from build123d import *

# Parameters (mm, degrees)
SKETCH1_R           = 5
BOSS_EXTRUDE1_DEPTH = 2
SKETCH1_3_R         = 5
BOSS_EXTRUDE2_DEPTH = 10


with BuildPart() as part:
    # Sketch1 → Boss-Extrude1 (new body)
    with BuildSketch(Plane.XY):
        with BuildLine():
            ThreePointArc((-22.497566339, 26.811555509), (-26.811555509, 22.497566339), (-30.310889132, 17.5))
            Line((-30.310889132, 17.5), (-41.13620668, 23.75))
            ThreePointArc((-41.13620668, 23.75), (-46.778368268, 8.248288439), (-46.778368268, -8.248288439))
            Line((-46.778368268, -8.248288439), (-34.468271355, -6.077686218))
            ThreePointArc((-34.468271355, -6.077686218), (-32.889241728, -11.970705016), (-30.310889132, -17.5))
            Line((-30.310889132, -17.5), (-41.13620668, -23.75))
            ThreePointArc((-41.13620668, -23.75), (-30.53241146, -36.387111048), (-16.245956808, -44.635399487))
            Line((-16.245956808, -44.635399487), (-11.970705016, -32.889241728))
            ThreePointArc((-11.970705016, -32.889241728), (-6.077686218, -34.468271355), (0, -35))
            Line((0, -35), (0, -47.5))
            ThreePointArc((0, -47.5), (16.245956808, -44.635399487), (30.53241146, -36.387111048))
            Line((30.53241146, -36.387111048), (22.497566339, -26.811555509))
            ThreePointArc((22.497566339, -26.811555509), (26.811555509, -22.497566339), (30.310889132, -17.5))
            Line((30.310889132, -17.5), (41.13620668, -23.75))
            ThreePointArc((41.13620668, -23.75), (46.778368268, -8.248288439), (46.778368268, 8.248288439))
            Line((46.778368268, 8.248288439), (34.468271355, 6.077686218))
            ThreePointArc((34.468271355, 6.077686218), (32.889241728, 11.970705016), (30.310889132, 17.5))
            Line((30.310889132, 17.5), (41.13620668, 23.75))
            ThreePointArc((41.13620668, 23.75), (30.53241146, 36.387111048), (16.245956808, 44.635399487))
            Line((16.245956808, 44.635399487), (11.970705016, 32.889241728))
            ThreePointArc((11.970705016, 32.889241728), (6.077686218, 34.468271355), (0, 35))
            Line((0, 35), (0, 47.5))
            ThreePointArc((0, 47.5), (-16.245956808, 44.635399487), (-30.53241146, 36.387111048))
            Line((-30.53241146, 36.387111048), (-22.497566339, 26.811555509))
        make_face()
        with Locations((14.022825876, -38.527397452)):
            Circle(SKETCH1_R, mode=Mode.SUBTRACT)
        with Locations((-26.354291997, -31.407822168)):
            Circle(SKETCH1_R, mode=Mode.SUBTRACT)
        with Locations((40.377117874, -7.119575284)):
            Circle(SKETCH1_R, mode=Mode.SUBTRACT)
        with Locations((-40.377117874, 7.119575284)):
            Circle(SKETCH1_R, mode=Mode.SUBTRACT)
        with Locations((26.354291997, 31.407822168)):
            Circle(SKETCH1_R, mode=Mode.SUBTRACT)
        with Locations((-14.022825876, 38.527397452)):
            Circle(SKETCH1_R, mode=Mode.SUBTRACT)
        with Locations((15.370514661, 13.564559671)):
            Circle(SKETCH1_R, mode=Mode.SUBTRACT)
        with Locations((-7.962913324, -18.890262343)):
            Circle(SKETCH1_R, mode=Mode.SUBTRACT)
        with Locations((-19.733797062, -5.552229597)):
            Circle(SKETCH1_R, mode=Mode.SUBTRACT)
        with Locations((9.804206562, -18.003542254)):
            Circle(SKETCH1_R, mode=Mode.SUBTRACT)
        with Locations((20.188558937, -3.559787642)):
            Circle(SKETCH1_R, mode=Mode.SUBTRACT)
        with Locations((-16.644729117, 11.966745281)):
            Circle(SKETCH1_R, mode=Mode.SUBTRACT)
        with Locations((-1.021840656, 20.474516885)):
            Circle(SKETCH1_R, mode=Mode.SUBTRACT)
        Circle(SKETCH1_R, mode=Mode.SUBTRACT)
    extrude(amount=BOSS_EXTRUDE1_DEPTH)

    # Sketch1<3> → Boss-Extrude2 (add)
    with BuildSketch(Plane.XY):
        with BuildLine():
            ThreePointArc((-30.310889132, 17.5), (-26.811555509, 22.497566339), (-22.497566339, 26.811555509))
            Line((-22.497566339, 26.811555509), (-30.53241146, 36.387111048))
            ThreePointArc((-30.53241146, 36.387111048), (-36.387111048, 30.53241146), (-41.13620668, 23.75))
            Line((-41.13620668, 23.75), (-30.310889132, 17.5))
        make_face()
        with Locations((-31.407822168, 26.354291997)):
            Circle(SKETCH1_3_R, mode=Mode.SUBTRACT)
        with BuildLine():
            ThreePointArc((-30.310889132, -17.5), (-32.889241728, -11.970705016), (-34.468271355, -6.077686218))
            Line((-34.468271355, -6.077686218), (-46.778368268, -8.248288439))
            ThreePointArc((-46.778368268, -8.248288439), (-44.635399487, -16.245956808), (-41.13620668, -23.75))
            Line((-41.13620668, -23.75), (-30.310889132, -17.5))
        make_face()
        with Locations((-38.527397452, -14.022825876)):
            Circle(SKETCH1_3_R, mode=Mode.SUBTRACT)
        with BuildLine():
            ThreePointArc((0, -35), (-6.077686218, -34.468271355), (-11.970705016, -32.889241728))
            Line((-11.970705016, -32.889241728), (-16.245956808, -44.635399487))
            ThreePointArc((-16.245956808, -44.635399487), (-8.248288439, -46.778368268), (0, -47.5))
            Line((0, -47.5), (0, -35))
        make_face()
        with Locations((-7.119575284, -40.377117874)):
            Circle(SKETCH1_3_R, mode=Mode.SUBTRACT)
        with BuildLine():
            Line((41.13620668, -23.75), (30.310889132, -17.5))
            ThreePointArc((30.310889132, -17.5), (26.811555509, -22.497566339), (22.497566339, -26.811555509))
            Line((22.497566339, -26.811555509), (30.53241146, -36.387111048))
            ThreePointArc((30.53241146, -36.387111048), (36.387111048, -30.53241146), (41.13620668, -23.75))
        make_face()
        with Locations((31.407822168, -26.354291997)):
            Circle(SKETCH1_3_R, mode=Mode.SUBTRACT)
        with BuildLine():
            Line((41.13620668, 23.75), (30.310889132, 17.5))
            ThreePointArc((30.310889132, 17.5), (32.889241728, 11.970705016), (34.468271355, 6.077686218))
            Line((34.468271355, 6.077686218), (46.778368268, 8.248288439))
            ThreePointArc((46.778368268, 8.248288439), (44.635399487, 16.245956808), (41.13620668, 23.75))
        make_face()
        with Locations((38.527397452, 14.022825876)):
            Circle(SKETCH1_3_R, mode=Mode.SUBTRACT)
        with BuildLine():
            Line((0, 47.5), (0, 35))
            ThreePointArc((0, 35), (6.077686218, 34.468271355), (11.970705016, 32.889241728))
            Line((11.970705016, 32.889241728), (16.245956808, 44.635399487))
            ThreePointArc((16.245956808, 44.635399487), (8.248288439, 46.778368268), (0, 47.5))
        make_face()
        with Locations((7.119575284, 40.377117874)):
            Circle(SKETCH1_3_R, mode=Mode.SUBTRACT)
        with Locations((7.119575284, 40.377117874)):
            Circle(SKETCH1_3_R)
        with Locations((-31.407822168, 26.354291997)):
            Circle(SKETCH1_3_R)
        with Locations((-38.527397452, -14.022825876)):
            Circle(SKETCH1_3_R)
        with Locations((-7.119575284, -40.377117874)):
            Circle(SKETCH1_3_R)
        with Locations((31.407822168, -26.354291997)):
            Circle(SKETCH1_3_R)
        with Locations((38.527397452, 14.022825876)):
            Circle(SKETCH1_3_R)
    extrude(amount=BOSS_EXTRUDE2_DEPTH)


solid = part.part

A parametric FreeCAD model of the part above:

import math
import FreeCAD as App
import Part
import Sketcher

V = App.Vector
Q = App.Units.Quantity

doc = App.newDocument("Part")
params = doc.addObject("Spreadsheet::Sheet", "Params")
for row, (alias, value) in enumerate([
    ("sketch1_diameter", "10 mm"),
    ("sketch1_radius", "35 mm"),
    ("sketch1_radius2", "47.5 mm"),
    ("pad1_length", "2 mm"),
    ("sketch2_radius", "35 mm"),
    ("sketch2_radius2", "47.5 mm"),
    ("pad2_length", "10 mm"),
], start=1):
    params.set(f"A{row}", alias)
    params.set(f"B{row}", "=" + value)
    params.setAlias(f"B{row}", alias)

body = doc.addObject("PartDesign::Body", "Body")

sketch1 = body.newObject("Sketcher::SketchObject", "Sketch")
sketch1.AttachmentSupport = (doc.getObject("XY_Plane"), [""])
sketch1.MapMode = "FlatFace"
sketch1.addGeometry(Part.ArcOfCircle(Part.Circle(V(0, 0, 0), V(0, 0, 1), 35), math.radians(130), math.radians(150)), False)
sketch1.addGeometry(Part.LineSegment(V(-30, 18, 0), V(-41, 24, 0)), False)
sketch1.addGeometry(Part.ArcOfCircle(Part.Circle(V(0, 0, 0), V(0, 0, 1), 48), math.radians(150), math.radians(190)), False)
sketch1.addGeometry(Part.LineSegment(V(-47, -8, 0), V(-34, -6, 0)), False)
sketch1.addGeometry(Part.ArcOfCircle(Part.Circle(V(0, 0, 0), V(0, 0, 1), 35), math.radians(-170), math.radians(-150)), False)
sketch1.addGeometry(Part.LineSegment(V(-30, -18, 0), V(-41, -24, 0)), False)
sketch1.addGeometry(Part.ArcOfCircle(Part.Circle(V(0, 0, 0), V(0, 0, 1), 48), math.radians(-150), math.radians(-110)), False)
sketch1.addGeometry(Part.LineSegment(V(-16, -45, 0), V(-12, -33, 0)), False)
sketch1.addGeometry(Part.ArcOfCircle(Part.Circle(V(0, 0, 0), V(0, 0, 1), 35), math.radians(-110), math.radians(-90)), False)
sketch1.addGeometry(Part.LineSegment(V(0, -35, 0), V(0, -48, 0)), False)
sketch1.addGeometry(Part.ArcOfCircle(Part.Circle(V(0, 0, 0), V(0, 0, 1), 48), math.radians(-90), math.radians(-50)), False)
sketch1.addGeometry(Part.LineSegment(V(31, -36, 0), V(22, -27, 0)), False)
sketch1.addGeometry(Part.ArcOfCircle(Part.Circle(V(0, 0, 0), V(0, 0, 1), 35), math.radians(-50), math.radians(-30)), False)
sketch1.addGeometry(Part.LineSegment(V(30, -18, 0), V(41, -24, 0)), False)
sketch1.addGeometry(Part.ArcOfCircle(Part.Circle(V(0, 0, 0), V(0, 0, 1), 48), math.radians(-30), math.radians(10)), False)
sketch1.addGeometry(Part.LineSegment(V(47, 8, 0), V(34, 6, 0)), False)
sketch1.addGeometry(Part.ArcOfCircle(Part.Circle(V(0, 0, 0), V(0, 0, 1), 35), math.radians(10), math.radians(30)), False)
sketch1.addGeometry(Part.LineSegment(V(30, 18, 0), V(41, 24, 0)), False)
sketch1.addGeometry(Part.ArcOfCircle(Part.Circle(V(0, 0, 0), V(0, 0, 1), 48), math.radians(30), math.radians(70)), False)
sketch1.addGeometry(Part.LineSegment(V(16, 45, 0), V(12, 33, 0)), False)
sketch1.addGeometry(Part.ArcOfCircle(Part.Circle(V(0, 0, 0), V(0, 0, 1), 35), math.radians(70), math.radians(90)), False)
sketch1.addGeometry(Part.LineSegment(V(0, 35, 0), V(0, 48, 0)), False)
sketch1.addGeometry(Part.ArcOfCircle(Part.Circle(V(0, 0, 0), V(0, 0, 1), 48), math.radians(90), math.radians(130)), False)
sketch1.addGeometry(Part.LineSegment(V(-31, 36, 0), V(-22, 27, 0)), False)
sketch1.addGeometry(Part.Circle(V(-26, -31, 0), V(0, 0, 1), 5), False)
sketch1.addGeometry(Part.Circle(V(-8, -19, 0), V(0, 0, 1), 5), False)
sketch1.addGeometry(Part.Circle(V(-20, -6, 0), V(0, 0, 1), 5), False)
sketch1.addGeometry(Part.Circle(V(14, -39, 0), V(0, 0, 1), 5), False)
sketch1.addGeometry(Part.Circle(V(10, -18, 0), V(0, 0, 1), 5), False)
sketch1.addGeometry(Part.Circle(V(20, -4, 0), V(0, 0, 1), 5), False)
sketch1.addGeometry(Part.Circle(V(40, -7, 0), V(0, 0, 1), 5), False)
sketch1.addGeometry(Part.Circle(V(-40, 7, 0), V(0, 0, 1), 5), False)
sketch1.addGeometry(Part.Circle(V(-17, 12, 0), V(0, 0, 1), 5), False)
sketch1.addGeometry(Part.Circle(V(-1, 20, 0), V(0, 0, 1), 5), False)
sketch1.addGeometry(Part.Circle(V(-14, 39, 0), V(0, 0, 1), 5), False)
sketch1.addGeometry(Part.Circle(V(0, 0, 0), V(0, 0, 1), 5), False)
sketch1.addGeometry(Part.Circle(V(15, 14, 0), V(0, 0, 1), 5), False)
sketch1.addGeometry(Part.Circle(V(26, 31, 0), V(0, 0, 1), 5), False)
sketch1.addConstraint(Sketcher.Constraint("Coincident", 0, 2, 1, 1))
sketch1.addConstraint(Sketcher.Constraint("Coincident", 1, 2, 2, 1))
sketch1.addConstraint(Sketcher.Constraint("Coincident", 2, 2, 3, 1))
sketch1.addConstraint(Sketcher.Constraint("Coincident", 3, 2, 4, 1))
sketch1.addConstraint(Sketcher.Constraint("Coincident", 4, 2, 5, 1))
sketch1.addConstraint(Sketcher.Constraint("Coincident", 5, 2, 6, 1))
sketch1.addConstraint(Sketcher.Constraint("Coincident", 6, 2, 7, 1))
sketch1.addConstraint(Sketcher.Constraint("Coincident", 7, 2, 8, 1))
sketch1.addConstraint(Sketcher.Constraint("Coincident", 8, 2, 9, 1))
sketch1.addConstraint(Sketcher.Constraint("Coincident", 9, 2, 10, 1))
sketch1.addConstraint(Sketcher.Constraint("Coincident", 10, 2, 11, 1))
sketch1.addConstraint(Sketcher.Constraint("Coincident", 11, 2, 12, 1))
sketch1.addConstraint(Sketcher.Constraint("Coincident", 12, 2, 13, 1))
sketch1.addConstraint(Sketcher.Constraint("Coincident", 13, 2, 14, 1))
sketch1.addConstraint(Sketcher.Constraint("Coincident", 14, 2, 15, 1))
sketch1.addConstraint(Sketcher.Constraint("Coincident", 15, 2, 16, 1))
sketch1.addConstraint(Sketcher.Constraint("Coincident", 16, 2, 17, 1))
sketch1.addConstraint(Sketcher.Constraint("Coincident", 17, 2, 18, 1))
sketch1.addConstraint(Sketcher.Constraint("Coincident", 18, 2, 19, 1))
sketch1.addConstraint(Sketcher.Constraint("Coincident", 19, 2, 20, 1))
sketch1.addConstraint(Sketcher.Constraint("Coincident", 20, 2, 21, 1))
sketch1.addConstraint(Sketcher.Constraint("Coincident", 21, 2, 22, 1))
sketch1.addConstraint(Sketcher.Constraint("Coincident", 22, 2, 23, 1))
sketch1.addConstraint(Sketcher.Constraint("Coincident", 23, 2, 0, 1))
sketch1.addConstraint(Sketcher.Constraint("Vertical", 9))
sketch1.addConstraint(Sketcher.Constraint("Vertical", 21))
sketch1.addConstraint(Sketcher.Constraint("Coincident", 0, 3, -1, 1))
sketch1.addConstraint(Sketcher.Constraint("Coincident", 2, 3, -1, 1))
sketch1.addConstraint(Sketcher.Constraint("Coincident", 4, 3, -1, 1))
sketch1.addConstraint(Sketcher.Constraint("Coincident", 6, 3, -1, 1))
sketch1.addConstraint(Sketcher.Constraint("Coincident", 8, 3, -1, 1))
sketch1.addConstraint(Sketcher.Constraint("Coincident", 10, 3, -1, 1))
sketch1.addConstraint(Sketcher.Constraint("Coincident", 12, 3, -1, 1))
sketch1.addConstraint(Sketcher.Constraint("Coincident", 14, 3, -1, 1))
sketch1.addConstraint(Sketcher.Constraint("Coincident", 16, 3, -1, 1))
sketch1.addConstraint(Sketcher.Constraint("Coincident", 18, 3, -1, 1))
sketch1.addConstraint(Sketcher.Constraint("Coincident", 20, 3, -1, 1))
sketch1.addConstraint(Sketcher.Constraint("Coincident", 22, 3, -1, 1))
sketch1.addConstraint(Sketcher.Constraint("Coincident", 35, 3, -1, 1))
sketch1.addConstraint(Sketcher.Constraint("Equal", 0, 4))
sketch1.addConstraint(Sketcher.Constraint("Equal", 2, 6))
sketch1.addConstraint(Sketcher.Constraint("Equal", 4, 8))
sketch1.addConstraint(Sketcher.Constraint("Equal", 6, 10))
sketch1.addConstraint(Sketcher.Constraint("Equal", 8, 12))
sketch1.addConstraint(Sketcher.Constraint("Equal", 10, 14))
sketch1.addConstraint(Sketcher.Constraint("Equal", 12, 16))
sketch1.addConstraint(Sketcher.Constraint("Equal", 14, 18))
sketch1.addConstraint(Sketcher.Constraint("Equal", 16, 20))
sketch1.addConstraint(Sketcher.Constraint("Equal", 18, 22))
sketch1.addConstraint(Sketcher.Constraint("Equal", 24, 25))
sketch1.addConstraint(Sketcher.Constraint("Equal", 25, 26))
sketch1.addConstraint(Sketcher.Constraint("Equal", 26, 27))
sketch1.addConstraint(Sketcher.Constraint("Equal", 27, 28))
sketch1.addConstraint(Sketcher.Constraint("Equal", 28, 29))
sketch1.addConstraint(Sketcher.Constraint("Equal", 29, 30))
sketch1.addConstraint(Sketcher.Constraint("Equal", 30, 31))
sketch1.addConstraint(Sketcher.Constraint("Equal", 31, 32))
sketch1.addConstraint(Sketcher.Constraint("Equal", 32, 33))
sketch1.addConstraint(Sketcher.Constraint("Equal", 33, 34))
sketch1.addConstraint(Sketcher.Constraint("Equal", 34, 35))
sketch1.addConstraint(Sketcher.Constraint("Equal", 35, 36))
sketch1.addConstraint(Sketcher.Constraint("Equal", 36, 37))
sketch1.addConstraint(Sketcher.Constraint("Symmetric", 30, 3, 31, 3, -1, 1))
sketch1.addConstraint(Sketcher.Constraint("Symmetric", 27, 3, 34, 3, -1, 1))
sketch1.addConstraint(Sketcher.Constraint("Symmetric", 24, 3, 37, 3, -1, 1))
sketch1.addConstraint(Sketcher.Constraint("PointOnObject", 8, 2, -2))
sketch1.addConstraint(Sketcher.Constraint("PointOnObject", 20, 2, -2))
sketch1.addConstraint(Sketcher.Constraint("Parallel", 1, 13))
sketch1.addConstraint(Sketcher.Constraint("Parallel", 3, 15))
sketch1.addConstraint(Sketcher.Constraint("Parallel", 5, 17))
sketch1.addConstraint(Sketcher.Constraint("Parallel", 7, 19))
sketch1.addConstraint(Sketcher.Constraint("Parallel", 11, 23))
sketch1.addConstraint(Sketcher.Constraint("Horizontal", 4, 2, 12, 2))
sketch1.addConstraint(Sketcher.Constraint("Horizontal", 5, 2, 13, 2))
sketch1.addConstraint(Sketcher.Constraint("Horizontal", 0, 2, 16, 2))
sketch1.addConstraint(Sketcher.Constraint("Vertical", 0, 2, 4, 2))
sketch1.addConstraint(Sketcher.Constraint("Diameter", 24, 10.0))
sketch1.addConstraint(Sketcher.Constraint("Radius", 0, 35.0))
sketch1.addConstraint(Sketcher.Constraint("Radius", 2, 47.5))
sketch1.addConstraint(Sketcher.Constraint("Angle", 1, Q("150 deg")))
sketch1.addConstraint(Sketcher.Constraint("Angle", 3, Q("10 deg")))
sketch1.addConstraint(Sketcher.Constraint("Angle", 7, Q("70 deg")))
sketch1.addConstraint(Sketcher.Constraint("Angle", 11, Q("130 deg")))
sketch1.addConstraint(Sketcher.Constraint("DistanceY", -1, 1, 0, 2, 17.5))
sketch1.addConstraint(Sketcher.Constraint("DistanceY", 6, 2, -1, 1, 44.635399))
sketch1.addConstraint(Sketcher.Constraint("DistanceY", -1, 1, 18, 2, 44.635399))
sketch1.addConstraint(Sketcher.Constraint("DistanceY", 7, 2, 28, 3, 14.885699))
sketch1.addConstraint(Sketcher.Constraint("DistanceX", 24, 3, -1, 1, 26.354292))
sketch1.addConstraint(Sketcher.Constraint("DistanceY", 26, 3, -1, 1, 5.55223))
sketch1.addConstraint(Sketcher.Constraint("DistanceX", -1, 1, 29, 3, 20.188559))
sketch1.addConstraint(Sketcher.Constraint("DistanceX", 32, 3, -1, 1, 16.644729))
sketch1.addConstraint(Sketcher.Constraint("DistanceX", 33, 3, -1, 1, 1.021841))
sketch1.addConstraint(Sketcher.Constraint("DistanceY", -1, 1, 36, 3, 13.56456))
sketch1.addConstraint(Sketcher.Constraint("DistanceX", 2, 2, -1, 1, 46.778368))
sketch1.addConstraint(Sketcher.Constraint("DistanceX", -1, 1, 10, 2, 30.532411))
sketch1.addConstraint(Sketcher.Constraint("DistanceX", -1, 1, 14, 2, 46.778368))
sketch1.addConstraint(Sketcher.Constraint("DistanceX", 22, 2, -1, 1, 30.532411))
sketch1.addConstraint(Sketcher.Constraint("DistanceX", 25, 3, 27, 3, 21.985739))
sketch1.addConstraint(Sketcher.Constraint("DistanceX", 25, 3, 28, 3, 17.76712))
sketch1.addConstraint(Sketcher.Constraint("DistanceY", 25, 3, 28, 3, 0.88672))
sketch1.addConstraint(Sketcher.Constraint("DistanceX", 29, 3, 30, 3, 20.188559))
sketch1.addConstraint(Sketcher.Constraint("DistanceX", 28, 3, 30, 3, 30.572911))
sketch1.addConstraint(Sketcher.Constraint("DistanceX", 31, 3, 26, 3, 20.643321))
sketch1.addConstraint(Sketcher.Constraint("DistanceY", 32, 3, 33, 3, 8.507772))
sketch1.addConstraint(Sketcher.Constraint("DistanceY", 33, 3, 34, 3, 18.052881))
sketch1.addConstraint(Sketcher.Constraint("DistanceY", 29, 3, 37, 3, 34.96761))
sketch1.addConstraint(Sketcher.Constraint("DistanceY", 3, 2, 31, 3, 13.197262))
sketch1.addConstraint(Sketcher.Constraint("DistanceY", 3, 2, 32, 3, 18.044431))
sketch1.addConstraint(Sketcher.Constraint("DistanceY", 7, 2, 24, 3, 1.48142))
sketch1.addConstraint(Sketcher.Constraint("DistanceX", 19, 2, 36, 3, 3.39981))
sketch1.setExpression("Constraints[76]", "Params.sketch1_diameter")
sketch1.setExpression("Constraints[77]", "Params.sketch1_radius")
sketch1.setExpression("Constraints[78]", "Params.sketch1_radius2")
pad1 = body.newObject("PartDesign::Pad", "Pad")
pad1.Profile = sketch1
pad1.setExpression("Length", "Params.pad1_length")

sketch2 = body.newObject("Sketcher::SketchObject", "Sketch001")
sketch2.AttachmentSupport = (doc.getObject("XY_Plane"), [""])
sketch2.MapMode = "FlatFace"
sketch2.addGeometry(Part.ArcOfCircle(Part.Circle(V(0, 0, 0), V(0, 0, 1), 35), math.radians(130), math.radians(150)), False)
sketch2.addGeometry(Part.LineSegment(V(-22, 27, 0), V(-31, 36, 0)), False)
sketch2.addGeometry(Part.ArcOfCircle(Part.Circle(V(0, 0, 0), V(0, 0, 1), 48), math.radians(130), math.radians(150)), False)
sketch2.addGeometry(Part.LineSegment(V(-41, 24, 0), V(-30, 18, 0)), False)
sketch2.addGeometry(Part.ArcOfCircle(Part.Circle(V(0, 0, 0), V(0, 0, 1), 35), math.radians(-170), math.radians(-150)), False)
sketch2.addGeometry(Part.LineSegment(V(-34, -6, 0), V(-47, -8, 0)), False)
sketch2.addGeometry(Part.ArcOfCircle(Part.Circle(V(0, 0, 0), V(0, 0, 1), 48), math.radians(-170), math.radians(-150)), False)
sketch2.addGeometry(Part.LineSegment(V(-41, -24, 0), V(-30, -18, 0)), False)
sketch2.addGeometry(Part.ArcOfCircle(Part.Circle(V(0, 0, 0), V(0, 0, 1), 35), math.radians(-110), math.radians(-90)), False)
sketch2.addGeometry(Part.LineSegment(V(-12, -33, 0), V(-16, -45, 0)), False)
sketch2.addGeometry(Part.ArcOfCircle(Part.Circle(V(0, 0, 0), V(0, 0, 1), 47), math.radians(-110), math.radians(-90)), False)
sketch2.addGeometry(Part.LineSegment(V(0, -48, 0), V(0, -35, 0)), False)
sketch2.addGeometry(Part.LineSegment(V(41, -24, 0), V(30, -18, 0)), False)
sketch2.addGeometry(Part.ArcOfCircle(Part.Circle(V(0, 0, 0), V(0, 0, 1), 35), math.radians(-50), math.radians(-30)), False)
sketch2.addGeometry(Part.LineSegment(V(22, -27, 0), V(31, -36, 0)), False)
sketch2.addGeometry(Part.ArcOfCircle(Part.Circle(V(0, 0, 0), V(0, 0, 1), 48), math.radians(-50), math.radians(-30)), False)
sketch2.addGeometry(Part.LineSegment(V(41, 24, 0), V(30, 18, 0)), False)
sketch2.addGeometry(Part.ArcOfCircle(Part.Circle(V(0, 0, 0), V(0, 0, 1), 35), math.radians(10), math.radians(30)), False)
sketch2.addGeometry(Part.LineSegment(V(34, 6, 0), V(47, 8, 0)), False)
sketch2.addGeometry(Part.ArcOfCircle(Part.Circle(V(0, 0, 0), V(0, 0, 1), 48), math.radians(10), math.radians(30)), False)
sketch2.addGeometry(Part.LineSegment(V(0, 48, 0), V(0, 35, 0)), False)
sketch2.addGeometry(Part.ArcOfCircle(Part.Circle(V(0, 0, 0), V(0, 0, 1), 35), math.radians(70), math.radians(90)), False)
sketch2.addGeometry(Part.LineSegment(V(12, 33, 0), V(16, 45, 0)), False)
sketch2.addGeometry(Part.ArcOfCircle(Part.Circle(V(0, 0, 0), V(0, 0, 1), 47), math.radians(70), math.radians(90)), False)
sketch2.addConstraint(Sketcher.Constraint("Coincident", 0, 1, 1, 1))
sketch2.addConstraint(Sketcher.Constraint("Coincident", 1, 2, 2, 1))
sketch2.addConstraint(Sketcher.Constraint("Coincident", 2, 2, 3, 1))
sketch2.addConstraint(Sketcher.Constraint("Coincident", 3, 2, 0, 2))
sketch2.addConstraint(Sketcher.Constraint("Coincident", 4, 1, 5, 1))
sketch2.addConstraint(Sketcher.Constraint("Coincident", 5, 2, 6, 1))
sketch2.addConstraint(Sketcher.Constraint("Coincident", 6, 2, 7, 1))
sketch2.addConstraint(Sketcher.Constraint("Coincident", 7, 2, 4, 2))
sketch2.addConstraint(Sketcher.Constraint("Coincident", 8, 1, 9, 1))
sketch2.addConstraint(Sketcher.Constraint("Coincident", 9, 2, 10, 1))
sketch2.addConstraint(Sketcher.Constraint("Coincident", 10, 2, 11, 1))
sketch2.addConstraint(Sketcher.Constraint("Coincident", 11, 2, 8, 2))
sketch2.addConstraint(Sketcher.Constraint("Coincident", 12, 2, 13, 2))
sketch2.addConstraint(Sketcher.Constraint("Coincident", 13, 1, 14, 1))
sketch2.addConstraint(Sketcher.Constraint("Coincident", 14, 2, 15, 1))
sketch2.addConstraint(Sketcher.Constraint("Coincident", 15, 2, 12, 1))
sketch2.addConstraint(Sketcher.Constraint("Coincident", 16, 2, 17, 2))
sketch2.addConstraint(Sketcher.Constraint("Coincident", 17, 1, 18, 1))
sketch2.addConstraint(Sketcher.Constraint("Coincident", 18, 2, 19, 1))
sketch2.addConstraint(Sketcher.Constraint("Coincident", 19, 2, 16, 1))
sketch2.addConstraint(Sketcher.Constraint("Coincident", 20, 2, 21, 2))
sketch2.addConstraint(Sketcher.Constraint("Coincident", 21, 1, 22, 1))
sketch2.addConstraint(Sketcher.Constraint("Coincident", 22, 2, 23, 1))
sketch2.addConstraint(Sketcher.Constraint("Coincident", 23, 2, 20, 1))
sketch2.addConstraint(Sketcher.Constraint("Vertical", 11))
sketch2.addConstraint(Sketcher.Constraint("Vertical", 20))
sketch2.addConstraint(Sketcher.Constraint("Coincident", 0, 3, -1, 1))
sketch2.addConstraint(Sketcher.Constraint("Coincident", 2, 3, -1, 1))
sketch2.addConstraint(Sketcher.Constraint("Coincident", 4, 3, -1, 1))
sketch2.addConstraint(Sketcher.Constraint("Coincident", 6, 3, -1, 1))
sketch2.addConstraint(Sketcher.Constraint("Coincident", 8, 3, -1, 1))
sketch2.addConstraint(Sketcher.Constraint("Coincident", 10, 3, -1, 1))
sketch2.addConstraint(Sketcher.Constraint("Coincident", 13, 3, -1, 1))
sketch2.addConstraint(Sketcher.Constraint("Coincident", 15, 3, -1, 1))
sketch2.addConstraint(Sketcher.Constraint("Coincident", 17, 3, -1, 1))
sketch2.addConstraint(Sketcher.Constraint("Coincident", 19, 3, -1, 1))
sketch2.addConstraint(Sketcher.Constraint("Coincident", 21, 3, -1, 1))
sketch2.addConstraint(Sketcher.Constraint("Coincident", 23, 3, -1, 1))
sketch2.addConstraint(Sketcher.Constraint("Equal", 0, 4))
sketch2.addConstraint(Sketcher.Constraint("Equal", 2, 6))
sketch2.addConstraint(Sketcher.Constraint("Equal", 4, 8))
sketch2.addConstraint(Sketcher.Constraint("Equal", 6, 10))
sketch2.addConstraint(Sketcher.Constraint("Equal", 8, 13))
sketch2.addConstraint(Sketcher.Constraint("Equal", 10, 15))
sketch2.addConstraint(Sketcher.Constraint("Equal", 13, 17))
sketch2.addConstraint(Sketcher.Constraint("Equal", 15, 19))
sketch2.addConstraint(Sketcher.Constraint("Equal", 17, 21))
sketch2.addConstraint(Sketcher.Constraint("Equal", 19, 23))
sketch2.addConstraint(Sketcher.Constraint("PointOnObject", 10, 2, -2))
sketch2.addConstraint(Sketcher.Constraint("PointOnObject", 20, 2, -2))
sketch2.addConstraint(Sketcher.Constraint("Parallel", 3, 12))
sketch2.addConstraint(Sketcher.Constraint("Parallel", 1, 14))
sketch2.addConstraint(Sketcher.Constraint("Parallel", 7, 16))
sketch2.addConstraint(Sketcher.Constraint("Parallel", 5, 18))
sketch2.addConstraint(Sketcher.Constraint("Parallel", 9, 22))
sketch2.addConstraint(Sketcher.Constraint("Horizontal", 7, 2, 12, 2))
sketch2.addConstraint(Sketcher.Constraint("Horizontal", 6, 2, 15, 2))
sketch2.addConstraint(Sketcher.Constraint("Horizontal", 3, 2, 16, 2))
sketch2.addConstraint(Sketcher.Constraint("Vertical", 2, 2, 6, 2))
sketch2.addConstraint(Sketcher.Constraint("Radius", 0, 35.0))
sketch2.addConstraint(Sketcher.Constraint("Radius", 2, 47.5))
sketch2.addConstraint(Sketcher.Constraint("Angle", 1, Q("130 deg")))
sketch2.addConstraint(Sketcher.Constraint("Angle", 3, Q("-30 deg")))
sketch2.addConstraint(Sketcher.Constraint("Angle", 5, Q("-170 deg")))
sketch2.addConstraint(Sketcher.Constraint("Angle", 9, Q("-110 deg")))
sketch2.addConstraint(Sketcher.Constraint("DistanceY", 10, 2, 7, 2, 30.0))
sketch2.addConstraint(Sketcher.Constraint("DistanceY", 9, 2, -1, 1, 44.635399))
sketch2.addConstraint(Sketcher.Constraint("DistanceY", -1, 1, 22, 2, 44.635399))
sketch2.addConstraint(Sketcher.Constraint("DistanceX", 5, 2, 0, 1, 24.280802))
sketch2.addConstraint(Sketcher.Constraint("DistanceX", 13, 1, 18, 2, 24.280802))
sketch2.addConstraint(Sketcher.Constraint("DistanceX", 1, 2, -1, 1, 30.532411))
sketch2.addConstraint(Sketcher.Constraint("DistanceX", -1, 1, 14, 2, 30.532411))
sketch2.setExpression("Constraints[59]", "Params.sketch2_radius")
sketch2.setExpression("Constraints[60]", "Params.sketch2_radius2")
pad2 = body.newObject("PartDesign::Pad", "Pad001")
pad2.Profile = sketch2
pad2.setExpression("Length", "Params.pad2_length")

doc.recompute()
